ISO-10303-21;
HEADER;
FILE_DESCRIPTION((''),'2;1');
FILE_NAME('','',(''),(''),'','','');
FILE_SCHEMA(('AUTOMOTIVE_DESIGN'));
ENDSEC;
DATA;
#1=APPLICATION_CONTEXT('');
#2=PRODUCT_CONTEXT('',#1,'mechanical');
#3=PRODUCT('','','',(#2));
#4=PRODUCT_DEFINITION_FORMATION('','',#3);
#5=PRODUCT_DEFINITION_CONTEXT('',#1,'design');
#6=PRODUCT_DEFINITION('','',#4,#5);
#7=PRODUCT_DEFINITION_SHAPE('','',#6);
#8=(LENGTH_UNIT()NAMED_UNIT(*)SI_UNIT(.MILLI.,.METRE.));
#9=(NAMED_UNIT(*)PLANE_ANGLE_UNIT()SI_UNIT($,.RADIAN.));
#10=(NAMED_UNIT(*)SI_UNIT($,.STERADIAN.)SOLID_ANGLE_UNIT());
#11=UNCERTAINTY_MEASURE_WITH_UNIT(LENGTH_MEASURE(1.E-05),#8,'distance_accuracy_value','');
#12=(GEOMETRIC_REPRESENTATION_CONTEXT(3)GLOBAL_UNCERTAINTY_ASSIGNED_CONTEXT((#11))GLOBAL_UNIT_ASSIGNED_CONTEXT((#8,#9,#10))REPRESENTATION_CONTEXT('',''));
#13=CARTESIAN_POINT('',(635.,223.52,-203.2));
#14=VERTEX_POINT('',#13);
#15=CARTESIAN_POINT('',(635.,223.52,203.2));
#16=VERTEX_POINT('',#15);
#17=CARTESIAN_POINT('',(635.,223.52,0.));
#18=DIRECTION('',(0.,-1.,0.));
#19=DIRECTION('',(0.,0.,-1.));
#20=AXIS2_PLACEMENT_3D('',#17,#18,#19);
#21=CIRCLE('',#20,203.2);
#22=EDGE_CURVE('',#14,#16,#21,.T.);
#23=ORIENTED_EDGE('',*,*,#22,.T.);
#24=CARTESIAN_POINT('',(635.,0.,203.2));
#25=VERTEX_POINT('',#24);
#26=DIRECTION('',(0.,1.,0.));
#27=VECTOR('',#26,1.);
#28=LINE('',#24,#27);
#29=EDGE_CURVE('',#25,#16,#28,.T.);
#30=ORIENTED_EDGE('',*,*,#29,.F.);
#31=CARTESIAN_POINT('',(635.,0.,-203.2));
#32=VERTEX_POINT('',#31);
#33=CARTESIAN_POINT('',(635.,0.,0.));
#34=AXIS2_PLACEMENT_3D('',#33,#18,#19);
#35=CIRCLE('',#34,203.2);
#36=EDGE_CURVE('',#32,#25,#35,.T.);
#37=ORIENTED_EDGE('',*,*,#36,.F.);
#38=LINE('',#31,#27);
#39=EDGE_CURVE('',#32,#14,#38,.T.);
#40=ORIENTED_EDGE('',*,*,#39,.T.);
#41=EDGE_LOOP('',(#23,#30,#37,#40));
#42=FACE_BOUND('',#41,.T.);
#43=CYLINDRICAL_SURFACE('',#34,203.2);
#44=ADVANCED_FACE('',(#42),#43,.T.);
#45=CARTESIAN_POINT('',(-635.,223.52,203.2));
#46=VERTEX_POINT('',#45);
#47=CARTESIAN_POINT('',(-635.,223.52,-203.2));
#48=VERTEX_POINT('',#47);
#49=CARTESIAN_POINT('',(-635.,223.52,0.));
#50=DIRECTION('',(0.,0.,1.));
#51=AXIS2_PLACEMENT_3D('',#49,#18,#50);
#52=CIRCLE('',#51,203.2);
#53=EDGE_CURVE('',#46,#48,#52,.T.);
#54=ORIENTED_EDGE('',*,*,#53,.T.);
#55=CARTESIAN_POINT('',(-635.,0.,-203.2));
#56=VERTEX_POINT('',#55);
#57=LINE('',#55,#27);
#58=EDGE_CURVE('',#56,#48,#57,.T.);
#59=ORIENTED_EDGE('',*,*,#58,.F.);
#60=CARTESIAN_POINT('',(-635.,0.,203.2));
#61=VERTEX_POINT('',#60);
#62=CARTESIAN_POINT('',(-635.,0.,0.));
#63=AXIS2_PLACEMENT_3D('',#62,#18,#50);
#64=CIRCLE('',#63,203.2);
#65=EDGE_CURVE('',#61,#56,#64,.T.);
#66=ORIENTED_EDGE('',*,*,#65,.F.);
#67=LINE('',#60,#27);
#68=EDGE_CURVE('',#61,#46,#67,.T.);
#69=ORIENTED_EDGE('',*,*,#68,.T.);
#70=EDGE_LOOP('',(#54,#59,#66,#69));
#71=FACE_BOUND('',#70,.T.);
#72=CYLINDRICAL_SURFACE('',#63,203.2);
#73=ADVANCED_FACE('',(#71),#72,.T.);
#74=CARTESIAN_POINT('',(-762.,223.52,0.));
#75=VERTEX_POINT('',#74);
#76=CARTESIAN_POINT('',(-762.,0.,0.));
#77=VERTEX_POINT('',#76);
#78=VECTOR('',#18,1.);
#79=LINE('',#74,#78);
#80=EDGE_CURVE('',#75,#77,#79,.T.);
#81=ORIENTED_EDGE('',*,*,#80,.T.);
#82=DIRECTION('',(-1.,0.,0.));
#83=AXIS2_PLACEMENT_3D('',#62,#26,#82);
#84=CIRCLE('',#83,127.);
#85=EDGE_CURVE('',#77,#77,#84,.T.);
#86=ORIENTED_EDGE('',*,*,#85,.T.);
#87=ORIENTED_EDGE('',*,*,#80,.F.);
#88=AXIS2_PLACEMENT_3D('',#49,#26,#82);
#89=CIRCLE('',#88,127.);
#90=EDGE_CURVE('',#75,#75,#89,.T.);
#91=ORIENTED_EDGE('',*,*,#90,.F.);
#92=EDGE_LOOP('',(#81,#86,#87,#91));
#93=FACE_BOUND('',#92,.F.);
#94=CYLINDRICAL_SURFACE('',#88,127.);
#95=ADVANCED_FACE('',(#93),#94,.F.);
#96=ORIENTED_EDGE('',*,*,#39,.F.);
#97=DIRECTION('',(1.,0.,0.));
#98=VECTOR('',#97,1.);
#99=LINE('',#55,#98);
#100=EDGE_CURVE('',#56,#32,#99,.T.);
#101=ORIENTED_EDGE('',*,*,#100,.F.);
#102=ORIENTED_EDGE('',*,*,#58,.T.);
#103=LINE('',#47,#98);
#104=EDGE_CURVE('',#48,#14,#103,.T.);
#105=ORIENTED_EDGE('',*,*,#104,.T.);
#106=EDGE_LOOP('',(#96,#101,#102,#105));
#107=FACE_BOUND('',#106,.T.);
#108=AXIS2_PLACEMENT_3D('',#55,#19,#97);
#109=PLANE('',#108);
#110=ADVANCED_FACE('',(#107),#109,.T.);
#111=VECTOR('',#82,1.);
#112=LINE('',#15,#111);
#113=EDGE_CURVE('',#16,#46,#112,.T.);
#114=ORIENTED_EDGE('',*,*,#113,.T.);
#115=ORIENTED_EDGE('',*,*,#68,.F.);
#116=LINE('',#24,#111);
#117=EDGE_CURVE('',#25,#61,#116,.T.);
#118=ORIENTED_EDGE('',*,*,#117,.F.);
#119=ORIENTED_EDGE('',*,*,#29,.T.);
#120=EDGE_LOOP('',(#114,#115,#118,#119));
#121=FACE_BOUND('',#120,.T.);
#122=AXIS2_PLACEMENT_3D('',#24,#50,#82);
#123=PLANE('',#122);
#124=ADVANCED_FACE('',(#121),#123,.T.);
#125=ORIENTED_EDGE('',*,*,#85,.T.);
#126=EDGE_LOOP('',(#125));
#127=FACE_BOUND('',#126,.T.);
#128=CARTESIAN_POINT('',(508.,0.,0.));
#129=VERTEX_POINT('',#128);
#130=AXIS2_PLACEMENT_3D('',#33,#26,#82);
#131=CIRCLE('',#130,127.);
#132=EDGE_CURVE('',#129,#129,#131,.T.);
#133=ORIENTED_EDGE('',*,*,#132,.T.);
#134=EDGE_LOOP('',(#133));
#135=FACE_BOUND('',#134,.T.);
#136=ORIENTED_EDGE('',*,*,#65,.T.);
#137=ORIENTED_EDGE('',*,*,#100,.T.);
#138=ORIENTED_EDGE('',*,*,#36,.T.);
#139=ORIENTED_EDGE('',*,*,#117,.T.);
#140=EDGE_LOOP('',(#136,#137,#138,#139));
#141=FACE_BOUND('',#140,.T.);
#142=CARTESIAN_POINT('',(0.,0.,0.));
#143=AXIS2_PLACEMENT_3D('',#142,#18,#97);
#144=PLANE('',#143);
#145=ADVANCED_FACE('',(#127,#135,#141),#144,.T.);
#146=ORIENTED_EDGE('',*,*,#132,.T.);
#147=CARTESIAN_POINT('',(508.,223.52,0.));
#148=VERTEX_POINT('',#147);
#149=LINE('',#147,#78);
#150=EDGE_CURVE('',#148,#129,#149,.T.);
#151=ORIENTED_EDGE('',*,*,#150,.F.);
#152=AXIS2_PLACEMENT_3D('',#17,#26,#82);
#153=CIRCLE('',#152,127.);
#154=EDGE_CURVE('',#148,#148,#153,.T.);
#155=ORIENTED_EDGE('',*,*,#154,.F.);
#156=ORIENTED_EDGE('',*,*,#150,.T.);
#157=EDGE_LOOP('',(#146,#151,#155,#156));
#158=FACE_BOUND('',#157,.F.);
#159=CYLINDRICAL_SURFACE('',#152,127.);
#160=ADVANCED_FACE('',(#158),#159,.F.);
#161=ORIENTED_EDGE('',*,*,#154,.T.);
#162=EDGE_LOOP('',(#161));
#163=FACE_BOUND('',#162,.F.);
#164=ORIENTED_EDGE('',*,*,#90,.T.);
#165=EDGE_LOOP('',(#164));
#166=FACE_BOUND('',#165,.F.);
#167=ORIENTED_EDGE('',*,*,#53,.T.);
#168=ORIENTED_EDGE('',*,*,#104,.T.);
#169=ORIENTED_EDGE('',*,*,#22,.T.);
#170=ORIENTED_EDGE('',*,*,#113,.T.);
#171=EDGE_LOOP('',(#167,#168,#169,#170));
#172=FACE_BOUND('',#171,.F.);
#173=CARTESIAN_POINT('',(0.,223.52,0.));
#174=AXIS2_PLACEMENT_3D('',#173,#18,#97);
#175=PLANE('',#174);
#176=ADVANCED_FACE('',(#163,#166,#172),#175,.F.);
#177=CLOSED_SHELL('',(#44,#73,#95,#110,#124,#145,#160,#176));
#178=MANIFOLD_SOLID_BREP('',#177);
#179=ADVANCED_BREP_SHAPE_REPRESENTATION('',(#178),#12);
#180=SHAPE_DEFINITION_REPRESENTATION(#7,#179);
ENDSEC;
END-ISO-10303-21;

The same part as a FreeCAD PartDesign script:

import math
import FreeCAD as App
import Part
import Sketcher
from FreeCAD import Vector
Q = App.Units.Quantity

doc = App.newDocument("Part")
body = doc.addObject("PartDesign::Body", "Body")

sketch1 = body.newObject("Sketcher::SketchObject", "Sketch")
sketch1.AttachmentSupport = (doc.getObject("XZ_Plane"), [""])
sketch1.MapMode = "FlatFace"
sketch1.addGeometry(Part.LineSegment(Vector(635, 203, 0), Vector(-635, 203, 0)), False)
sketch1.addGeometry(Part.ArcOfCircle(Part.Circle(Vector(-635, 0, 0), Vector(0, 0, 1), 203), math.radians(90), math.radians(270)), False)
sketch1.addGeometry(Part.LineSegment(Vector(-635, -203, 0), Vector(635, -203, 0)), False)
sketch1.addGeometry(Part.ArcOfCircle(Part.Circle(Vector(635, 0, 0), Vector(0, 0, 1), 203), math.radians(-90), math.radians(90)), False)
sketch1.addConstraint(Sketcher.Constraint("Tangent", 0, 2, 1, 1))
sketch1.addConstraint(Sketcher.Constraint("Tangent", 1, 2, 2, 1))
sketch1.addConstraint(Sketcher.Constraint("Tangent", 2, 2, 3, 1))
sketch1.addConstraint(Sketcher.Constraint("Tangent", 3, 2, 0, 1))
sketch1.addConstraint(Sketcher.Constraint("Horizontal", 0))
sketch1.addConstraint(Sketcher.Constraint("Horizontal", 2))
sketch1.addConstraint(Sketcher.Constraint("Symmetric", 1, 3, 3, 3, -1, 1))
sketch1.addConstraint(Sketcher.Constraint("Radius", 1, Q("8 in")))
sketch1.addConstraint(Sketcher.Constraint("DistanceX", 0, 2, 0, 1, Q("50 in")))
pad1 = body.newObject("PartDesign::Pad", "Pad")
pad1.Profile = sketch1
pad1.Length = Q("8.8 in")
pad1.Reversed = True

sketch2 = body.newObject("Sketcher::SketchObject", "Sketch001")
sketch2.AttachmentSupport = (doc.getObject("XZ_Plane"), [""])
sketch2.MapMode = "FlatFace"
sketch2.AttachmentOffset = App.Placement(Vector(0, 0, -8.8 * 25.4), App.Rotation())
sketch2.addGeometry(Part.Circle(Vector(635, 0, 0), Vector(0, 0, 1), 127), False)
sketch2.addGeometry(Part.Circle(Vector(-635, 0, 0), Vector(0, 0, 1), 127), False)
sketch2.addConstraint(Sketcher.Constraint("Equal", 0, 1))
sketch2.addConstraint(Sketcher.Constraint("Symmetric", 0, 3, 1, 3, -1, 1))
sketch2.addConstraint(Sketcher.Constraint("PointOnObject", 0, 3, -1))
sketch2.addConstraint(Sketcher.Constraint("Diameter", 0, Q("10 in")))
sketch2.addConstraint(Sketcher.Constraint("DistanceX", -1, 1, 0, 3, Q("25 in")))
pocket1 = body.newObject("PartDesign::Pocket", "Pocket")
pocket1.Profile = sketch2
pocket1.Length = Q("32.8 in")
pocket1.Reversed = True

doc.recompute()
